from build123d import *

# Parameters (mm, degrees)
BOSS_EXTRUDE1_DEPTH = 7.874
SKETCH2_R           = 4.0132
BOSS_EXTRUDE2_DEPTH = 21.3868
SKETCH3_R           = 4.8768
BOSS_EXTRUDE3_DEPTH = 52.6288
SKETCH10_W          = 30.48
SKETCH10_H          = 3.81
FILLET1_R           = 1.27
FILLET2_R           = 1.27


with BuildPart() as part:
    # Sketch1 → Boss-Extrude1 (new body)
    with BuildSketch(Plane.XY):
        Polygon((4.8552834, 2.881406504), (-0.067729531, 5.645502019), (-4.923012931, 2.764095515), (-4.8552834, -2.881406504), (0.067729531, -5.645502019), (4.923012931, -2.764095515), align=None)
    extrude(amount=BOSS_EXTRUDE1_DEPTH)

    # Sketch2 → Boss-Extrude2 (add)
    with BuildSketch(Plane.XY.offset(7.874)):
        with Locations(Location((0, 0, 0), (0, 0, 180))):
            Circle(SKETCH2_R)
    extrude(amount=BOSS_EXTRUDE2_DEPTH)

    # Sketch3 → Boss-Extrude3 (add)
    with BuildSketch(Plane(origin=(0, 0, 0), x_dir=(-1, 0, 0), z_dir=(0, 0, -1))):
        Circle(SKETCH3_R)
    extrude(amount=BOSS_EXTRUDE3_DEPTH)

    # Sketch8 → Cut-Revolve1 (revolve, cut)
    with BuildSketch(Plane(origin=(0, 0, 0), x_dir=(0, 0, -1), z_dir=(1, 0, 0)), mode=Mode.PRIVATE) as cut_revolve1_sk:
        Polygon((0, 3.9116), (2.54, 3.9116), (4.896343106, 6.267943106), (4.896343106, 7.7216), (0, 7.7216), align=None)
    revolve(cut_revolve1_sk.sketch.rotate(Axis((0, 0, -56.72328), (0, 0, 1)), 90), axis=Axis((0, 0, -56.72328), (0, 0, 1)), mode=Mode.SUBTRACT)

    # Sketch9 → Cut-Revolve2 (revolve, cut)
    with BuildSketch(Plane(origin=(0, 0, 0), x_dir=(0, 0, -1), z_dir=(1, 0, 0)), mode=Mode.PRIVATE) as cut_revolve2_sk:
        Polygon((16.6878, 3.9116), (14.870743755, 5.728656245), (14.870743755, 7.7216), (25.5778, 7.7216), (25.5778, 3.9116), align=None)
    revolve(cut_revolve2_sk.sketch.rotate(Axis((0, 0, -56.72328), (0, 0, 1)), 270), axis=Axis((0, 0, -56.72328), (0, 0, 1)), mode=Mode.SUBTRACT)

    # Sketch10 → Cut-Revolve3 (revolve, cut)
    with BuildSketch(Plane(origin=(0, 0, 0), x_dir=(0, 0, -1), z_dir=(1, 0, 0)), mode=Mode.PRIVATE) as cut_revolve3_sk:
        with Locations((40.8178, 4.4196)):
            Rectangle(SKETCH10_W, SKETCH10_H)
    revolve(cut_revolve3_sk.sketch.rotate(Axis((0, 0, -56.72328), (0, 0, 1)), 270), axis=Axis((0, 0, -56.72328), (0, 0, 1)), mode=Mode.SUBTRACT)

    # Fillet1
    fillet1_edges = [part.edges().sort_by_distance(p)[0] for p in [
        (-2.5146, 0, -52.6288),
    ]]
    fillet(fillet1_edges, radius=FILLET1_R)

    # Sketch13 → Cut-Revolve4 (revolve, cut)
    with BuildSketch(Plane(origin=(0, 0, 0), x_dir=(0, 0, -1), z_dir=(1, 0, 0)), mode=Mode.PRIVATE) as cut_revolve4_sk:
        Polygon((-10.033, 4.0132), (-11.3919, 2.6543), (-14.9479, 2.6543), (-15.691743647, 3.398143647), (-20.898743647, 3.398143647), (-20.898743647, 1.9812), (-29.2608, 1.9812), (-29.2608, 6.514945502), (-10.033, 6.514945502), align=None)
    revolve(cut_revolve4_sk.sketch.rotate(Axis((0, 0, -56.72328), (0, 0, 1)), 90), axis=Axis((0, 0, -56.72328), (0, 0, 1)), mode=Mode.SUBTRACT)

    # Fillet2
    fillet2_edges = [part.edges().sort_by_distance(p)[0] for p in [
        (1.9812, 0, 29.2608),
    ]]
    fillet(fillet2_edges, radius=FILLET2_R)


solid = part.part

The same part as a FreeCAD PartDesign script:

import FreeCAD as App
import Part
import Sketcher

V = App.Vector
Q = App.Units.Quantity


def edges_at(feature, points):
    """Names of the edges that pass closest to the given points."""
    edges = feature.Shape.Edges
    near = lambda p: min(range(len(edges)), key=lambda i: edges[i].distToShape(Part.Vertex(*p))[0])
    return sorted({f"Edge{near(p) + 1}" for p in points})

doc = App.newDocument("Part")
body = doc.addObject("PartDesign::Body", "Body")

sketch1 = body.newObject("Sketcher::SketchObject", "Sketch")
sketch1.AttachmentSupport = (doc.getObject("XY_Plane"), [""])
sketch1.MapMode = "FlatFace"
sketch1.addGeometry(Part.LineSegment(V(4.855283, 2.881407, 0), V(-0.06773, 5.645502, 0)), False)
sketch1.addGeometry(Part.LineSegment(V(-0.06773, 5.645502, 0), V(-4.923013, 2.764096, 0)), False)
sketch1.addGeometry(Part.LineSegment(V(-4.923013, 2.764096, 0), V(-4.855283, -2.881407, 0)), False)
sketch1.addGeometry(Part.LineSegment(V(-4.855283, -2.881407, 0), V(0.06773, -5.645502, 0)), False)
sketch1.addGeometry(Part.LineSegment(V(0.06773, -5.645502, 0), V(4.923013, -2.764096, 0)), False)
sketch1.addGeometry(Part.LineSegment(V(4.923013, -2.764096, 0), V(4.855283, 2.881407, 0)), False)
sketch1.addConstraint(Sketcher.Constraint("Coincident", 0, 2, 1, 1))
sketch1.addConstraint(Sketcher.Constraint("Coincident", 1, 2, 2, 1))
sketch1.addConstraint(Sketcher.Constraint("Coincident", 2, 2, 3, 1))
sketch1.addConstraint(Sketcher.Constraint("Coincident", 3, 2, 4, 1))
sketch1.addConstraint(Sketcher.Constraint("Coincident", 4, 2, 5, 1))
sketch1.addConstraint(Sketcher.Constraint("Coincident", 5, 2, 0, 1))
sketch1.addConstraint(Sketcher.Constraint("Symmetric", 0, 2, 3, 2, -1, 1))
sketch1.addConstraint(Sketcher.Constraint("Symmetric", 1, 2, 4, 2, -1, 1))
sketch1.addConstraint(Sketcher.Constraint("Symmetric", 2, 2, 5, 2, -1, 1))
sketch1.addConstraint(Sketcher.Constraint("Equal", 0, 1))
sketch1.addConstraint(Sketcher.Constraint("Equal", 1, 2))
sketch1.addConstraint(Sketcher.Constraint("Distance", 0, Q("5.645908 mm")))
sketch1.addConstraint(Sketcher.Constraint("DistanceX", 0, 2, -1, 1, Q("0.06773 mm")))
sketch1.addConstraint(Sketcher.Constraint("DistanceX", 1, 2, 2, 2, Q("0.06773 mm")))
sketch1.addConstraint(Sketcher.Constraint("DistanceY", 2, 2, 0, 2, Q("8.526909 mm")))
pad1 = body.newObject("PartDesign::Pad", "Pad")
pad1.Profile = sketch1
pad1.Length = Q("0.31 in")

sketch2 = body.newObject("Sketcher::SketchObject", "Sketch001")
sketch2.AttachmentSupport = (doc.getObject("XY_Plane"), [""])
sketch2.MapMode = "FlatFace"
sketch2.AttachmentOffset = App.Placement(V(0, 0, 0.31 * 25.4), App.Rotation())
sketch2.addGeometry(Part.Circle(V(0, 0, 0), V(0, 0, 1), 4.0132), False)
sketch2.addConstraint(Sketcher.Constraint("Coincident", 0, 3, -1, 1))
sketch2.addConstraint(Sketcher.Constraint("Diameter", 0, Q("0.316 in")))
pad2 = body.newObject("PartDesign::Pad", "Pad001")
pad2.Profile = sketch2
pad2.Length = Q("0.842 in")

sketch3 = body.newObject("Sketcher::SketchObject", "Sketch002")
sketch3.AttachmentSupport = (doc.getObject("XY_Plane"), [""])
sketch3.MapMode = "FlatFace"
sketch3.addGeometry(Part.Circle(V(0, 0, 0), V(0, 0, 1), 4.8768), False)
sketch3.addConstraint(Sketcher.Constraint("Coincident", 0, 3, -1, 1))
sketch3.addConstraint(Sketcher.Constraint("Diameter", 0, Q("0.384 in")))
pad3 = body.newObject("PartDesign::Pad", "Pad002")
pad3.Profile = sketch3
pad3.Length = Q("2.072 in")
pad3.Reversed = True

sketch4 = body.newObject("Sketcher::SketchObject", "Sketch003")
sketch4.AttachmentSupport = (doc.getObject("YZ_Plane"), [""])
sketch4.MapMode = "FlatFace"
sketch4.addGeometry(Part.LineSegment(V(3.9116, 0, 0), V(3.9116, -2.54, 0)), False)
sketch4.addGeometry(Part.LineSegment(V(3.9116, -2.54, 0), V(6.267943, -4.896343, 0)), False)
sketch4.addGeometry(Part.LineSegment(V(6.267943, -4.896343, 0), V(7.7216, -4.896343, 0)), False)
sketch4.addGeometry(Part.LineSegment(V(7.7216, -4.896343, 0), V(7.7216, 0, 0)), False)
sketch4.addGeometry(Part.LineSegment(V(7.7216, 0, 0), V(3.9116, 0, 0)), False)
sketch4.addConstraint(Sketcher.Constraint("Coincident", 0, 2, 1, 1))
sketch4.addConstraint(Sketcher.Constraint("Coincident", 1, 2, 2, 1))
sketch4.addConstraint(Sketcher.Constraint("Coincident", 2, 2, 3, 1))
sketch4.addConstraint(Sketcher.Constraint("Coincident", 3, 2, 4, 1))
sketch4.addConstraint(Sketcher.Constraint("Coincident", 4, 2, 0, 1))
sketch4.addConstraint(Sketcher.Constraint("Vertical", 0))
sketch4.addConstraint(Sketcher.Constraint("Horizontal", 2))
sketch4.addConstraint(Sketcher.Constraint("Vertical", 3))
sketch4.addConstraint(Sketcher.Constraint("Horizontal", 4))
sketch4.addConstraint(Sketcher.Constraint("PointOnObject", 3, 2, -1))
sketch4.addConstraint(Sketcher.Constraint("DistanceY", 0, 2, 0, 1, Q("0.1 in")))
sketch4.addConstraint(Sketcher.Constraint("Angle", 1, Q("-45 deg")))
sketch4.addConstraint(Sketcher.Constraint("DistanceX", 4, 2, 4, 1, Q("0.15 in")))
sketch4.addConstraint(Sketcher.Constraint("DistanceX", -1, 1, 0, 2, Q("0.154 in")))
sketch4.addConstraint(Sketcher.Constraint("DistanceX", 2, 1, 2, 2, Q("1.453657 mm")))
groove = body.newObject("PartDesign::Groove", "Groove")
groove.Profile = sketch4
groove.ReferenceAxis = (sketch4, ["V_Axis"])
groove.Angle = 360

sketch5 = body.newObject("Sketcher::SketchObject", "Sketch004")
sketch5.AttachmentSupport = (doc.getObject("YZ_Plane"), [""])
sketch5.MapMode = "FlatFace"
sketch5.addGeometry(Part.LineSegment(V(5.728656, -14.870744, 0), V(3.9116, -16.6878, 0)), False)
sketch5.addGeometry(Part.LineSegment(V(3.9116, -16.6878, 0), V(3.9116, -25.5778, 0)), False)
sketch5.addGeometry(Part.LineSegment(V(3.9116, -25.5778, 0), V(7.7216, -25.5778, 0)), False)
sketch5.addGeometry(Part.LineSegment(V(7.7216, -25.5778, 0), V(7.7216, -14.870744, 0)), False)
sketch5.addGeometry(Part.LineSegment(V(7.7216, -14.870744, 0), V(5.728656, -14.870744, 0)), False)
sketch5.addConstraint(Sketcher.Constraint("Coincident", 0, 2, 1, 1))
sketch5.addConstraint(Sketcher.Constraint("Coincident", 1, 2, 2, 1))
sketch5.addConstraint(Sketcher.Constraint("Coincident", 2, 2, 3, 1))
sketch5.addConstraint(Sketcher.Constraint("Coincident", 3, 2, 4, 1))
sketch5.addConstraint(Sketcher.Constraint("Coincident", 4, 2, 0, 1))
sketch5.addConstraint(Sketcher.Constraint("Vertical", 1))
sketch5.addConstraint(Sketcher.Constraint("Horizontal", 2))
sketch5.addConstraint(Sketcher.Constraint("Vertical", 3))
sketch5.addConstraint(Sketcher.Constraint("Horizontal", 4))
sketch5.addConstraint(Sketcher.Constraint("Angle", 0, Q("-135 deg")))
sketch5.addConstraint(Sketcher.Constraint("DistanceX", 2, 1, 2, 2, Q("0.15 in")))
sketch5.addConstraint(Sketcher.Constraint("DistanceY", 1, 2, 1, 1, Q("0.35 in")))
sketch5.addConstraint(Sketcher.Constraint("DistanceX", -1, 1, 0, 2, Q("0.154 in")))
sketch5.addConstraint(Sketcher.Constraint("DistanceY", 0, 2, -1, 1, Q("0.657 in")))
sketch5.addConstraint(Sketcher.Constraint("DistanceX", 4, 2, 4, 1, Q("1.992944 mm")))
groove2 = body.newObject("PartDesign::Groove", "Groove001")
groove2.Profile = sketch5
groove2.ReferenceAxis = (sketch5, ["V_Axis"])
groove2.Angle = 360

sketch6 = body.newObject("Sketcher::SketchObject", "Sketch005")
sketch6.AttachmentSupport = (doc.getObject("YZ_Plane"), [""])
sketch6.MapMode = "FlatFace"
sketch6.addGeometry(Part.LineSegment(V(6.3246, -25.5778, 0), V(2.5146, -25.5778, 0)), False)
sketch6.addGeometry(Part.LineSegment(V(2.5146, -25.5778, 0), V(2.5146, -56.0578, 0)), False)
sketch6.addGeometry(Part.LineSegment(V(2.5146, -56.0578, 0), V(6.3246, -56.0578, 0)), False)
sketch6.addGeometry(Part.LineSegment(V(6.3246, -56.0578, 0), V(6.3246, -25.5778, 0)), False)
sketch6.addConstraint(Sketcher.Constraint("Coincident", 0, 2, 1, 1))
sketch6.addConstraint(Sketcher.Constraint("Coincident", 1, 2, 2, 1))
sketch6.addConstraint(Sketcher.Constraint("Coincident", 2, 2, 3, 1))
sketch6.addConstraint(Sketcher.Constraint("Coincident", 3, 2, 0, 1))
sketch6.addConstraint(Sketcher.Constraint("Horizontal", 0))
sketch6.addConstraint(Sketcher.Constraint("Vertical", 1))
sketch6.addConstraint(Sketcher.Constraint("Horizontal", 2))
sketch6.addConstraint(Sketcher.Constraint("Vertical", 3))
sketch6.addConstraint(Sketcher.Constraint("DistanceY", 1, 2, 1, 1, Q("1.2 in")))
sketch6.addConstraint(Sketcher.Constraint("DistanceX", 0, 2, 0, 1, Q("0.15 in")))
sketch6.addConstraint(Sketcher.Constraint("DistanceX", -1, 1, 0, 2, Q("0.099 in")))
sketch6.addConstraint(Sketcher.Constraint("DistanceY", 0, 2, -1, 1, Q("1.007 in")))
groove3 = body.newObject("PartDesign::Groove", "Groove002")
groove3.Profile = sketch6
groove3.ReferenceAxis = (sketch6, ["V_Axis"])
groove3.Angle = 360
doc.recompute()

fillet = body.newObject("PartDesign::Fillet", "Fillet")
fillet.Base = (groove3, edges_at(groove3, [(-2.515, 0, -52.629)]))
fillet.Radius = Q("0.05 in")

sketch7 = body.newObject("Sketcher::SketchObject", "Sketch006")
sketch7.AttachmentSupport = (doc.getObject("YZ_Plane"), [""])
sketch7.MapMode = "FlatFace"
sketch7.addGeometry(Part.LineSegment(V(2.6543, 11.3919, 0), V(4.0132, 10.033, 0)), False)
sketch7.addGeometry(Part.LineSegment(V(4.0132, 10.033, 0), V(6.514946, 10.033, 0)), False)
sketch7.addGeometry(Part.LineSegment(V(6.514946, 10.033, 0), V(6.514946, 29.2608, 0)), False)
sketch7.addGeometry(Part.LineSegment(V(6.514946, 29.2608, 0), V(1.9812, 29.2608, 0)), False)
sketch7.addGeometry(Part.LineSegment(V(1.9812, 29.2608, 0), V(1.9812, 20.898744, 0)), False)
sketch7.addGeometry(Part.LineSegment(V(1.9812, 20.898744, 0), V(3.398144, 20.898744, 0)), False)
sketch7.addGeometry(Part.LineSegment(V(3.398144, 20.898744, 0), V(3.398144, 15.691744, 0)), False)
sketch7.addGeometry(Part.LineSegment(V(3.398144, 15.691744, 0), V(2.6543, 14.9479, 0)), False)
sketch7.addGeometry(Part.LineSegment(V(2.6543, 14.9479, 0), V(2.6543, 11.3919, 0)), False)
sketch7.addConstraint(Sketcher.Constraint("Coincident", 0, 2, 1, 1))
sketch7.addConstraint(Sketcher.Constraint("Coincident", 1, 2, 2, 1))
sketch7.addConstraint(Sketcher.Constraint("Coincident", 2, 2, 3, 1))
sketch7.addConstraint(Sketcher.Constraint("Coincident", 3, 2, 4, 1))
sketch7.addConstraint(Sketcher.Constraint("Coincident", 4, 2, 5, 1))
sketch7.addConstraint(Sketcher.Constraint("Coincident", 5, 2, 6, 1))
sketch7.addConstraint(Sketcher.Constraint("Coincident", 6, 2, 7, 1))
sketch7.addConstraint(Sketcher.Constraint("Coincident", 7, 2, 8, 1))
sketch7.addConstraint(Sketcher.Constraint("Coincident", 8, 2, 0, 1))
sketch7.addConstraint(Sketcher.Constraint("Horizontal", 1))
sketch7.addConstraint(Sketcher.Constraint("Vertical", 2))
sketch7.addConstraint(Sketcher.Constraint("Horizontal", 3))
sketch7.addConstraint(Sketcher.Constraint("Vertical", 4))
sketch7.addConstraint(Sketcher.Constraint("Horizontal", 5))
sketch7.addConstraint(Sketcher.Constraint("Vertical", 6))
sketch7.addConstraint(Sketcher.Constraint("Vertical", 8))
sketch7.addConstraint(Sketcher.Constraint("Perpendicular", 0, 7))
sketch7.addConstraint(Sketcher.Constraint("Angle", 0, Q("-45 deg")))
sketch7.addConstraint(Sketcher.Constraint("DistanceY", 8, 2, 8, 1, Q("0.14 in")))
sketch7.addConstraint(Sketcher.Constraint("DistanceY", 2, 1, 2, 2, Q("0.757 in")))
sketch7.addConstraint(Sketcher.Constraint("DistanceY", 6, 2, 6, 1, Q("0.205 in")))
sketch7.addConstraint(Sketcher.Constraint("DistanceX", 3, 2, 0, 2, Q("0.08 in")))
sketch7.addConstraint(Sketcher.Constraint("DistanceX", -1, 1, 0, 2, Q("0.158 in")))
sketch7.addConstraint(Sketcher.Constraint("DistanceY", -1, 1, 0, 2, Q("0.395 in")))
sketch7.addConstraint(Sketcher.Constraint("DistanceX", -1, 1, 7, 2, Q("0.1045 in")))
sketch7.addConstraint(Sketcher.Constraint("DistanceX", 5, 2, 2, 2, Q("3.116802 mm")))
sketch7.addConstraint(Sketcher.Constraint("DistanceX", 1, 1, 1, 2, Q("2.501746 mm")))
groove4 = body.newObject("PartDesign::Groove", "Groove003")
groove4.Profile = sketch7
groove4.ReferenceAxis = (sketch7, ["V_Axis"])
groove4.Angle = 360
doc.recompute()

fillet2 = body.newObject("PartDesign::Fillet", "Fillet001")
fillet2.Base = (groove4, edges_at(groove4, [(1.981, 0, 29.261)]))
fillet2.Radius = Q("0.05 in")

doc.recompute()
